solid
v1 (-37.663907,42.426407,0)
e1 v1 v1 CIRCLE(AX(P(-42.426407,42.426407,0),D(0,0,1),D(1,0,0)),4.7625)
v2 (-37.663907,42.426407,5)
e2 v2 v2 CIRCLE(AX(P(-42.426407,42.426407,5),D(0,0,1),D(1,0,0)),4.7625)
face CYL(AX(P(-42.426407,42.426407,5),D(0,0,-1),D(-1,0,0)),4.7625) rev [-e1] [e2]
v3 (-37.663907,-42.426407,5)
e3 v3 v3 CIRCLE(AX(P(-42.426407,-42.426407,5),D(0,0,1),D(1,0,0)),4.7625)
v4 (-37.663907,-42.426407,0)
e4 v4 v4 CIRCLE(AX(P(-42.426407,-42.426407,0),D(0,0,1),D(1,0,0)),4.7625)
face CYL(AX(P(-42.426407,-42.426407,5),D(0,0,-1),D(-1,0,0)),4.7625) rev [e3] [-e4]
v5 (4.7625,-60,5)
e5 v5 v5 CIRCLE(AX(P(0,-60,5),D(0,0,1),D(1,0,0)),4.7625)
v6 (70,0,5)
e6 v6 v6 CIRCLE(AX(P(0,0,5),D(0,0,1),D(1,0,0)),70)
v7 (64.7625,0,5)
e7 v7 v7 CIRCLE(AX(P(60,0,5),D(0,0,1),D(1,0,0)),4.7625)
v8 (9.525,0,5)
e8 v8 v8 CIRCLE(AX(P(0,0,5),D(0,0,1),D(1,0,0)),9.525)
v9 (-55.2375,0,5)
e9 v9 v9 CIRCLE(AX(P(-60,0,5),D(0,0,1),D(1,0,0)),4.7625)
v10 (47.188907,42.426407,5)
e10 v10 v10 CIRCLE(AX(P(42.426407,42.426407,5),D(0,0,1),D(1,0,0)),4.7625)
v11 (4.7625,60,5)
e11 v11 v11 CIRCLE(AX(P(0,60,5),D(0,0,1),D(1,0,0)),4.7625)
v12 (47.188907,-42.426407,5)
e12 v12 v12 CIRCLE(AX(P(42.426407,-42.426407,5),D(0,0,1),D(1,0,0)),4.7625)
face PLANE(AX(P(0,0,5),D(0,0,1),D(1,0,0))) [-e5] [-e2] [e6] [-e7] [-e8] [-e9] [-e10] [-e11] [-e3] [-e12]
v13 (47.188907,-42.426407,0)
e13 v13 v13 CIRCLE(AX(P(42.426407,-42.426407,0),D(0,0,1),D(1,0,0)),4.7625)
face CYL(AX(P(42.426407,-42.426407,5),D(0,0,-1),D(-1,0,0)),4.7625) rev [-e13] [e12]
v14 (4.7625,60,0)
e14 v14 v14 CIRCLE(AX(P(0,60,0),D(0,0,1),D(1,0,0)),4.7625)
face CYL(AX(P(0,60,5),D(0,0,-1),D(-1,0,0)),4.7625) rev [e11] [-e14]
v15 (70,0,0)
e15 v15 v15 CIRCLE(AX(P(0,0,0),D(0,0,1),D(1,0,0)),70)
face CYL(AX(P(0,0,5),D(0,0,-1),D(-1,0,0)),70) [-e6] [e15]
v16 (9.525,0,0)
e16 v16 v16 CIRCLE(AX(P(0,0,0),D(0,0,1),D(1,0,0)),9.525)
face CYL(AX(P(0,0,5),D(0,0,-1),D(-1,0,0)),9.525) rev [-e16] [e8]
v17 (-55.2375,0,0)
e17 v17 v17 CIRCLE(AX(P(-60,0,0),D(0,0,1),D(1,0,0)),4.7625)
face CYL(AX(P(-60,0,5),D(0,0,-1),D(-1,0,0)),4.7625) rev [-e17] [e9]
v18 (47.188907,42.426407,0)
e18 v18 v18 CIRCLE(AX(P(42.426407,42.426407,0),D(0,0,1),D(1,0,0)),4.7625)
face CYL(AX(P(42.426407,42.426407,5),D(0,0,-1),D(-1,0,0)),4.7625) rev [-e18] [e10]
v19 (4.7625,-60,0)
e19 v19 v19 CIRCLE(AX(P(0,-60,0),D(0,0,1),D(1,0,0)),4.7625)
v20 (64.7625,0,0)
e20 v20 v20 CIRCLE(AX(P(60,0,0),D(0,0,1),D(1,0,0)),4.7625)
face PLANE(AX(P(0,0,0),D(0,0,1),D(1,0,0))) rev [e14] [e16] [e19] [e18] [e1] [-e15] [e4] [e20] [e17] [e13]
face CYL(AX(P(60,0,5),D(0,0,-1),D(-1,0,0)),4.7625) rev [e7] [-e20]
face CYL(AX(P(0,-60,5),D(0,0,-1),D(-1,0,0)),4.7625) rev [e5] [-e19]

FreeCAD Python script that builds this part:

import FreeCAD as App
import Part
import Sketcher
from FreeCAD import Vector

doc = App.newDocument("Part")
body = doc.addObject("PartDesign::Body", "Body")

sketch1 = body.newObject("Sketcher::SketchObject", "Sketch")
sketch1.AttachmentSupport = (doc.getObject("XY_Plane"), [""])
sketch1.MapMode = "FlatFace"
sketch1.addGeometry([
    Part.Circle(Vector(0, 0, 0), Vector(0, 0, 1), 70),
    Part.Circle(Vector(-42.4, -42.4, 0), Vector(0, 0, 1), 4.8),
    Part.Circle(Vector(0, -60, 0), Vector(0, 0, 1), 4.8),
    Part.Circle(Vector(42.4, -42.4, 0), Vector(0, 0, 1), 4.8),
    Part.Circle(Vector(-60, 0, 0), Vector(0, 0, 1), 4.8),
    Part.Circle(Vector(-42.4, 42.4, 0), Vector(0, 0, 1), 4.8),
    Part.Circle(Vector(0, 0, 0), Vector(0, 0, 1), 9.5),
    Part.Circle(Vector(60, 0, 0), Vector(0, 0, 1), 4.8),
    Part.Circle(Vector(0, 60, 0), Vector(0, 0, 1), 4.8),
    Part.Circle(Vector(42.4, 42.4, 0), Vector(0, 0, 1), 4.8),
], False)
sketch1.addConstraint([
    Sketcher.Constraint("Coincident", 0, 3, -1, 1),
    Sketcher.Constraint("Coincident", 6, 3, -1, 1),
    Sketcher.Constraint("Equal", 1, 2),
    Sketcher.Constraint("Equal", 2, 3),
    Sketcher.Constraint("Equal", 3, 4),
    Sketcher.Constraint("Equal", 4, 5),
    Sketcher.Constraint("Equal", 5, 7),
    Sketcher.Constraint("Equal", 7, 8),
    Sketcher.Constraint("Equal", 8, 9),
    Sketcher.Constraint("Symmetric", 3, 3, 5, 3, -1, 1),
    Sketcher.Constraint("Symmetric", 4, 3, 7, 3, -1, 1),
    Sketcher.Constraint("Symmetric", 2, 3, 8, 3, -1, 1),
    Sketcher.Constraint("Symmetric", 1, 3, 9, 3, -1, 1),
    Sketcher.Constraint("Symmetric", 1, 3, 3, 3, -2),
    Sketcher.Constraint("PointOnObject", 2, 3, -2),
    Sketcher.Constraint("PointOnObject", 4, 3, -1),
    Sketcher.Constraint("Diameter", 0, 140.0),
    Sketcher.Constraint("Diameter", 6, 19.05),
    Sketcher.Constraint("Diameter", 1, 9.525),
    Sketcher.Constraint("DistanceY", 2, 3, -1, 1, 60.0),
    Sketcher.Constraint("DistanceX", 4, 3, -1, 1, 60.0),
    Sketcher.Constraint("DistanceX", 1, 3, -1, 1, 42.426407),
    Sketcher.Constraint("DistanceY", 1, 3, -1, 1, 42.426407),
])
pad1 = body.newObject("PartDesign::Pad", "Pad")
pad1.Profile = sketch1
pad1.Length = 5

doc.recompute()
